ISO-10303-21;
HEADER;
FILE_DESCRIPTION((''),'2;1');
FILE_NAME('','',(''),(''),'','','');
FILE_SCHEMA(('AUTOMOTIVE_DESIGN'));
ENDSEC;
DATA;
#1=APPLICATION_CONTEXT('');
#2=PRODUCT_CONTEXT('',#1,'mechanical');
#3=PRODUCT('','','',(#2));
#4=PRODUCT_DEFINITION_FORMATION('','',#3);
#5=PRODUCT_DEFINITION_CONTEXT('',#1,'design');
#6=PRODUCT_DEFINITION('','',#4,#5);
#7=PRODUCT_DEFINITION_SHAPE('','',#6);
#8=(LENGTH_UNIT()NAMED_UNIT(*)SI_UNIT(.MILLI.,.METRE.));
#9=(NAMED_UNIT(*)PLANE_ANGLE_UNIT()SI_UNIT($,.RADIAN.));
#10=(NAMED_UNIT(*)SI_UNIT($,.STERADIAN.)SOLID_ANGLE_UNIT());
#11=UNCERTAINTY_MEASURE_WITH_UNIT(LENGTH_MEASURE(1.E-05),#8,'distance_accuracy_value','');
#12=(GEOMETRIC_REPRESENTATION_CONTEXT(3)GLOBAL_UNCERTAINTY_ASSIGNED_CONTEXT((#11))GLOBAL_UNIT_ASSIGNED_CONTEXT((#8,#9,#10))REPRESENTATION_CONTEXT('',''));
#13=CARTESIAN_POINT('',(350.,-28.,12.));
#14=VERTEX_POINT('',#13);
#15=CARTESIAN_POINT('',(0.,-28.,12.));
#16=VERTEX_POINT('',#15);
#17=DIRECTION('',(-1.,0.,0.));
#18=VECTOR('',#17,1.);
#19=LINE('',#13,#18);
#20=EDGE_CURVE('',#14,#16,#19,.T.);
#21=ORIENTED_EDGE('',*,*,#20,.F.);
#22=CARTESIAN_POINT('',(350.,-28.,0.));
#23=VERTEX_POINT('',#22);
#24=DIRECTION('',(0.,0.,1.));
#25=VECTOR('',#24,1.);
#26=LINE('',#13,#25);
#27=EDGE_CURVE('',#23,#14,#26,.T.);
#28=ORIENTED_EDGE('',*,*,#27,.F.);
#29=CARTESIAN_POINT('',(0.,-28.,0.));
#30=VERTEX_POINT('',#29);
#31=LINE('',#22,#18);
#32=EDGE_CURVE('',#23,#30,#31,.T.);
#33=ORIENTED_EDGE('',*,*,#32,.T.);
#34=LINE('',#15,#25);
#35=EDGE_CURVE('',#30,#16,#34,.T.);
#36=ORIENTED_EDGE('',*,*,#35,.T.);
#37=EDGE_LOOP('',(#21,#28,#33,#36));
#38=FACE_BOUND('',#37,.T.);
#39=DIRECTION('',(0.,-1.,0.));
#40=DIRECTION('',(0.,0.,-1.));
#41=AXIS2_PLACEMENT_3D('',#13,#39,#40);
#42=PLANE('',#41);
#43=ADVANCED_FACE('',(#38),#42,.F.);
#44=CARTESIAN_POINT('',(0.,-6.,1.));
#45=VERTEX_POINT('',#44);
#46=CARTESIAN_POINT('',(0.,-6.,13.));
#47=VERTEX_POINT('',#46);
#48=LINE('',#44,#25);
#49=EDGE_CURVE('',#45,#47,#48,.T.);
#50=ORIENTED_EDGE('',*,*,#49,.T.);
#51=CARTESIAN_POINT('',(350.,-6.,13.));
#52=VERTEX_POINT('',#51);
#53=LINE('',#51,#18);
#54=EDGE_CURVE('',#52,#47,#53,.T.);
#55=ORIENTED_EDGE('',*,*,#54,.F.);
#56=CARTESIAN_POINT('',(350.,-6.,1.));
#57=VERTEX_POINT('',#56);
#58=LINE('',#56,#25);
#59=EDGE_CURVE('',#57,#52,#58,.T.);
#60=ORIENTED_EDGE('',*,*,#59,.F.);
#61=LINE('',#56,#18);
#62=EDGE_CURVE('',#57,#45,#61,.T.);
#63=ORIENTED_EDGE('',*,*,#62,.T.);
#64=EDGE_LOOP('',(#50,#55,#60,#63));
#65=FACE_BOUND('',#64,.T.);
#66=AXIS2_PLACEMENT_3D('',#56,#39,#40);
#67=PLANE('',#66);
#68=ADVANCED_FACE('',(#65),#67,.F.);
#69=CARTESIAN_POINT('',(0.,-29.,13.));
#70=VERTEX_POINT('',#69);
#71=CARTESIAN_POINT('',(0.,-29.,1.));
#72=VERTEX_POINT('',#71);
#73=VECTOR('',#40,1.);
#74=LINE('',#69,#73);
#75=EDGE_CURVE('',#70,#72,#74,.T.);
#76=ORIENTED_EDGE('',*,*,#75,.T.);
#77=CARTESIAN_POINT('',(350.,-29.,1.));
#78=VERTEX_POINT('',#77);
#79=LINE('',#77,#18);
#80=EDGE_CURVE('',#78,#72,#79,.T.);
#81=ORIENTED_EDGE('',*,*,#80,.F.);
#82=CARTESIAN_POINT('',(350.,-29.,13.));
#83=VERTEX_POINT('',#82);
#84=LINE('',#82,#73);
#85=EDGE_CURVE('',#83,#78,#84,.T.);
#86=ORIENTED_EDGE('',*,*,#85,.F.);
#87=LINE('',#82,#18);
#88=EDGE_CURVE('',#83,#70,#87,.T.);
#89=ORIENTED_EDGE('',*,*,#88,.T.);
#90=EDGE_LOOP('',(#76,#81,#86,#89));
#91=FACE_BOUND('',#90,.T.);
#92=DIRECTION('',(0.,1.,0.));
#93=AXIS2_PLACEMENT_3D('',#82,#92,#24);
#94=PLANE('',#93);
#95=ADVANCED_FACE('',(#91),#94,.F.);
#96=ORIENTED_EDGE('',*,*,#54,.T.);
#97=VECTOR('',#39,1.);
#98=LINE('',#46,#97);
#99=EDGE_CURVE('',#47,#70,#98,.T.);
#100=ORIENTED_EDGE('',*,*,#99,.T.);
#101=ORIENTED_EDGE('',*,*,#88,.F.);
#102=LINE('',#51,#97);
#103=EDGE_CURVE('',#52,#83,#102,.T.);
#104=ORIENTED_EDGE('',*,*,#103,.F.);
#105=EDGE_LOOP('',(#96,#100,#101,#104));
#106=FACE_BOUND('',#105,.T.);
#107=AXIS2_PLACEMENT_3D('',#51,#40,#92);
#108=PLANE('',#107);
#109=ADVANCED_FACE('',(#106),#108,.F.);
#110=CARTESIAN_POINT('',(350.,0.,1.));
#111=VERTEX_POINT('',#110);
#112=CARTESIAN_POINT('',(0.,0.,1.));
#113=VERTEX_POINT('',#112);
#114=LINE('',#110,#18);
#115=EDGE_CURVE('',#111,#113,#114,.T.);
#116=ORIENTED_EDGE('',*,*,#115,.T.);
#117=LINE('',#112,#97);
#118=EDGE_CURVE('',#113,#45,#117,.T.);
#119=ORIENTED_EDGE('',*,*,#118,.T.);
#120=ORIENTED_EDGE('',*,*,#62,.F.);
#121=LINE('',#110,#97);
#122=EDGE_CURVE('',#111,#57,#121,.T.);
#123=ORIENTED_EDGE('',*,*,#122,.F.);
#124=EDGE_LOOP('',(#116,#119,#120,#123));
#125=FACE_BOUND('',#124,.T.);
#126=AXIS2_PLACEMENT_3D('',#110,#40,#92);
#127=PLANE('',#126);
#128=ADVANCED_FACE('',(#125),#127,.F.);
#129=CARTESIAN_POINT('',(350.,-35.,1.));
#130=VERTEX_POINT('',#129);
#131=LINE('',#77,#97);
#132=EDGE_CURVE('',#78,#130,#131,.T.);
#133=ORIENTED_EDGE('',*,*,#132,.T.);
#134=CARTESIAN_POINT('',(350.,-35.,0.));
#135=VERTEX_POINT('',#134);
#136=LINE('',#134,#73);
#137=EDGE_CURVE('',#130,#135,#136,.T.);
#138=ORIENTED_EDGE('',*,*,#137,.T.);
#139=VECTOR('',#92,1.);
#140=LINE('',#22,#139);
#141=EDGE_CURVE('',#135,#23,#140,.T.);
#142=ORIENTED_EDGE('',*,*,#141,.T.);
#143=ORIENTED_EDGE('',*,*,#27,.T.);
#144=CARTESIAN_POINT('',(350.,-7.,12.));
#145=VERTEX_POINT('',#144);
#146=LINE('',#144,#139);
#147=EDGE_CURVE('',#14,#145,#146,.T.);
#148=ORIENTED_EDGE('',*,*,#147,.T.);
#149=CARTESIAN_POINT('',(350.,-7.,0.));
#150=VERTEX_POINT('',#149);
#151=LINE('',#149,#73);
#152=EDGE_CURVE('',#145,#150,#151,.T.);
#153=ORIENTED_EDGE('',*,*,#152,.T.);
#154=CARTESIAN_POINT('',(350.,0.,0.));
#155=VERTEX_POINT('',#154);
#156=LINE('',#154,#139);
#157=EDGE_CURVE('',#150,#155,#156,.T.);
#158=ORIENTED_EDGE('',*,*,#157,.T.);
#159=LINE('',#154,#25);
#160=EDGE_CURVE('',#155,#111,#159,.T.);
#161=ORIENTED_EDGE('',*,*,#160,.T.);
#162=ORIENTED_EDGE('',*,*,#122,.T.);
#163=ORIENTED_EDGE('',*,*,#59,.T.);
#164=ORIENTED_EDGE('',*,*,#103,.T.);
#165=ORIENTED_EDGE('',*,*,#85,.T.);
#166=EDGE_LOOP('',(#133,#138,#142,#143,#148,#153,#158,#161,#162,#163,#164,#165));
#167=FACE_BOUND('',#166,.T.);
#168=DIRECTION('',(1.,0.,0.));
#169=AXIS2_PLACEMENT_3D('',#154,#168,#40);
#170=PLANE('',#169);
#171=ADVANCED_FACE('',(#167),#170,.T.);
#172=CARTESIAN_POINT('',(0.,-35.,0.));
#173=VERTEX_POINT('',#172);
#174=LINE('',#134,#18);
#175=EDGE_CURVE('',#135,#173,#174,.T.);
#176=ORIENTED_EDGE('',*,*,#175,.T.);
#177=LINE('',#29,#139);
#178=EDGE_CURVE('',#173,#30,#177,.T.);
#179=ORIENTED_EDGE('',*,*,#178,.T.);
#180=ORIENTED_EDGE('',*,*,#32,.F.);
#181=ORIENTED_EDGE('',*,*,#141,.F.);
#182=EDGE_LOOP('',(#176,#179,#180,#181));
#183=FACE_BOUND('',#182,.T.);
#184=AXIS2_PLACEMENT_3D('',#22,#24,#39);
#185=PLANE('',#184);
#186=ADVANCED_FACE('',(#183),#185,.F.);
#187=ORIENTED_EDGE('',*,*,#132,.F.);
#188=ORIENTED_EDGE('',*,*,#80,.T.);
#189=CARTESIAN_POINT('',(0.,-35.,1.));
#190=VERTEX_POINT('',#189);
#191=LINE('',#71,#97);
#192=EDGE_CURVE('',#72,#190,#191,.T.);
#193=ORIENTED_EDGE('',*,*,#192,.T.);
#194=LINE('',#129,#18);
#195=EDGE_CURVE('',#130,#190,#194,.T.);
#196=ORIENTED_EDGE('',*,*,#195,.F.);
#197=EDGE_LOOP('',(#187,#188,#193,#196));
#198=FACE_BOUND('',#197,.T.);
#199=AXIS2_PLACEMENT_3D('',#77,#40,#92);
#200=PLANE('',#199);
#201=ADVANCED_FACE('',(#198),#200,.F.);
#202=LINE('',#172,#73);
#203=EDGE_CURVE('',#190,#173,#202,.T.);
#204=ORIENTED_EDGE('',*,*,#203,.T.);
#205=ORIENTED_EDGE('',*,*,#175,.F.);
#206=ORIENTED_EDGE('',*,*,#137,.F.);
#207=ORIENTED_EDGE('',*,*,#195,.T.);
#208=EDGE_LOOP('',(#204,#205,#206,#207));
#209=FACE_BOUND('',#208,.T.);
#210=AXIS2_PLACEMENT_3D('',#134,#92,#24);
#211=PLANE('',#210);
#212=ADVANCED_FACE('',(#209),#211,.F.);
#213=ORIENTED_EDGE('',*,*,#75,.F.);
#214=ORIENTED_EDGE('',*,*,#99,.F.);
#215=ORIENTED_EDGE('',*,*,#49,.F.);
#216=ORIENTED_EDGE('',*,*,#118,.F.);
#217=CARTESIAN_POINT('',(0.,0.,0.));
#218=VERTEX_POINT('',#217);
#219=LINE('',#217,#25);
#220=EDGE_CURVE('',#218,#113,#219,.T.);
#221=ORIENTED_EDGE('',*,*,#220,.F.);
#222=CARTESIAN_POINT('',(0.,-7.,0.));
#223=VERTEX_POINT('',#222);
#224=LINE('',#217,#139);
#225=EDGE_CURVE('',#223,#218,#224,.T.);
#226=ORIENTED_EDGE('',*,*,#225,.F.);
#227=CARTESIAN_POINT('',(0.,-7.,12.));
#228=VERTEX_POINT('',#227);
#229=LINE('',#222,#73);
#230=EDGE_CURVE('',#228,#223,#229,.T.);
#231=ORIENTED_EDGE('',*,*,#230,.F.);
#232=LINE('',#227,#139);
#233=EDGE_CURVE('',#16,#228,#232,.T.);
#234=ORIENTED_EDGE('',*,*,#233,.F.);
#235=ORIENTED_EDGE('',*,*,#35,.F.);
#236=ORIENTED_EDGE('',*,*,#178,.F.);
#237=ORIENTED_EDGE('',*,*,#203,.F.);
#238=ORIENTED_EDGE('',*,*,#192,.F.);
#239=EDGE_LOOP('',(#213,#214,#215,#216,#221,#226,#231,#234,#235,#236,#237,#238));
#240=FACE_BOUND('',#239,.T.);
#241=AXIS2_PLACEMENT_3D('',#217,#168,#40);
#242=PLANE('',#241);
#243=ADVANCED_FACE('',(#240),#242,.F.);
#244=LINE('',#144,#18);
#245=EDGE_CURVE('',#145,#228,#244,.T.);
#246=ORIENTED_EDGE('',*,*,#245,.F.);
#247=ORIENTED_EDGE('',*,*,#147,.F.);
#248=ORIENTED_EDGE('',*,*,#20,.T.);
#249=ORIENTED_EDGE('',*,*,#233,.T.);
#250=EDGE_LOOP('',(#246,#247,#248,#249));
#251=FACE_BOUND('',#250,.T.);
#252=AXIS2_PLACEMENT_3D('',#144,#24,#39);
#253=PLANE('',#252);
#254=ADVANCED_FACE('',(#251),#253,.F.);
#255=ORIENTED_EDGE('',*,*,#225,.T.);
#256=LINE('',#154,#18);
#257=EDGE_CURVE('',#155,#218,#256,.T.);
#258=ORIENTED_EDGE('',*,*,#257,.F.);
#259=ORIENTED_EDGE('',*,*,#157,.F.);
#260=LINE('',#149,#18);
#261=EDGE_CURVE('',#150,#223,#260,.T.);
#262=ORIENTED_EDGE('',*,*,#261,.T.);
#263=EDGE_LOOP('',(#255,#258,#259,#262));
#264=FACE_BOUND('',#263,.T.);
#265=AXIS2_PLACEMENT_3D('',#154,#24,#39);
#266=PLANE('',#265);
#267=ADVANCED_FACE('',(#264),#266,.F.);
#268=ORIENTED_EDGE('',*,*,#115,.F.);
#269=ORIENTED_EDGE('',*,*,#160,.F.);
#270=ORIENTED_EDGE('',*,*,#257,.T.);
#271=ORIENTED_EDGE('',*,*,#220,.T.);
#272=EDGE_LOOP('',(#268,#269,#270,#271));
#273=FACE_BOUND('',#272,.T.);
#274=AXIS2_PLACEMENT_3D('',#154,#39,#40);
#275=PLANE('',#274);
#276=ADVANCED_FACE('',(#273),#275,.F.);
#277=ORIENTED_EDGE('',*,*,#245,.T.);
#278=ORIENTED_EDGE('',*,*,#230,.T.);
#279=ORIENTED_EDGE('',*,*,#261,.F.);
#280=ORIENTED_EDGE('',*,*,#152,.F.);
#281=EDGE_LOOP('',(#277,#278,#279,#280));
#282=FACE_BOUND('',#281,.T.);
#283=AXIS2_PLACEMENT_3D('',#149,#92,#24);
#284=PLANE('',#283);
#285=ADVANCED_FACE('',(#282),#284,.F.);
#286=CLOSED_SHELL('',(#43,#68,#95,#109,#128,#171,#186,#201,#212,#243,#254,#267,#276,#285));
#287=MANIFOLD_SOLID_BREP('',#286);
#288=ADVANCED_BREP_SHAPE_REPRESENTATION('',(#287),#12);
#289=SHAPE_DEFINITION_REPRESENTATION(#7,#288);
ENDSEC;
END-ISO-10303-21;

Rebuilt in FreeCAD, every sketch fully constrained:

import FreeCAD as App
import Part
import Sketcher

V = App.Vector

doc = App.newDocument("Part")
params = doc.addObject("Spreadsheet::Sheet", "Params")
for row, (alias, value) in enumerate([
    ("sketch1_width", "7 mm"),
    ("sketch1_width2", "6 mm"),
    ("sketch1_width3", "23 mm"),
    ("sketch1_height", "1 mm"),
    ("sketch1_height2", "12 mm"),
    ("pad1_length", "350 mm"),
], start=1):
    params.set(f"A{row}", alias)
    params.set(f"B{row}", "=" + value)
    params.setAlias(f"B{row}", alias)

body = doc.addObject("PartDesign::Body", "Body")

sketch1 = body.newObject("Sketcher::SketchObject", "Sketch")
sketch1.AttachmentSupport = (doc.getObject("YZ_Plane"), [""])
sketch1.MapMode = "FlatFace"
sketch1.addGeometry(Part.LineSegment(V(-7, 0, 0), V(0, 0, 0)), False)
sketch1.addGeometry(Part.LineSegment(V(0, 0, 0), V(0, 1, 0)), False)
sketch1.addGeometry(Part.LineSegment(V(0, 1, 0), V(-6, 1, 0)), False)
sketch1.addGeometry(Part.LineSegment(V(-6, 1, 0), V(-6, 13, 0)), False)
sketch1.addGeometry(Part.LineSegment(V(-6, 13, 0), V(-29, 13, 0)), False)
sketch1.addGeometry(Part.LineSegment(V(-29, 13, 0), V(-29, 1, 0)), False)
sketch1.addGeometry(Part.LineSegment(V(-29, 1, 0), V(-35, 1, 0)), False)
sketch1.addGeometry(Part.LineSegment(V(-35, 1, 0), V(-35, 0, 0)), False)
sketch1.addGeometry(Part.LineSegment(V(-35, 0, 0), V(-28, 0, 0)), False)
sketch1.addGeometry(Part.LineSegment(V(-28, 0, 0), V(-28, 12, 0)), False)
sketch1.addGeometry(Part.LineSegment(V(-28, 12, 0), V(-7, 12, 0)), False)
sketch1.addGeometry(Part.LineSegment(V(-7, 12, 0), V(-7, 0, 0)), False)
sketch1.addConstraint(Sketcher.Constraint("Coincident", 0, 2, 1, 1))
sketch1.addConstraint(Sketcher.Constraint("Coincident", 1, 2, 2, 1))
sketch1.addConstraint(Sketcher.Constraint("Coincident", 2, 2, 3, 1))
sketch1.addConstraint(Sketcher.Constraint("Coincident", 3, 2, 4, 1))
sketch1.addConstraint(Sketcher.Constraint("Coincident", 4, 2, 5, 1))
sketch1.addConstraint(Sketcher.Constraint("Coincident", 5, 2, 6, 1))
sketch1.addConstraint(Sketcher.Constraint("Coincident", 6, 2, 7, 1))
sketch1.addConstraint(Sketcher.Constraint("Coincident", 7, 2, 8, 1))
sketch1.addConstraint(Sketcher.Constraint("Coincident", 8, 2, 9, 1))
sketch1.addConstraint(Sketcher.Constraint("Coincident", 9, 2, 10, 1))
sketch1.addConstraint(Sketcher.Constraint("Coincident", 10, 2, 11, 1))
sketch1.addConstraint(Sketcher.Constraint("Coincident", 11, 2, 0, 1))
sketch1.addConstraint(Sketcher.Constraint("Horizontal", 0))
sketch1.addConstraint(Sketcher.Constraint("Vertical", 1))
sketch1.addConstraint(Sketcher.Constraint("Horizontal", 2))
sketch1.addConstraint(Sketcher.Constraint("Vertical", 3))
sketch1.addConstraint(Sketcher.Constraint("Horizontal", 4))
sketch1.addConstraint(Sketcher.Constraint("Vertical", 5))
sketch1.addConstraint(Sketcher.Constraint("Horizontal", 6))
sketch1.addConstraint(Sketcher.Constraint("Vertical", 7))
sketch1.addConstraint(Sketcher.Constraint("Horizontal", 8))
sketch1.addConstraint(Sketcher.Constraint("Vertical", 9))
sketch1.addConstraint(Sketcher.Constraint("Horizontal", 10))
sketch1.addConstraint(Sketcher.Constraint("Vertical", 11))
sketch1.addConstraint(Sketcher.Constraint("Coincident", 0, 2, -1, 1))
sketch1.addConstraint(Sketcher.Constraint("PointOnObject", 7, 2, -1))
sketch1.addConstraint(Sketcher.Constraint("Horizontal", 2, 2, 5, 2))
sketch1.addConstraint(Sketcher.Constraint("Equal", 2, 6))
sketch1.addConstraint(Sketcher.Constraint("Equal", 0, 8))
sketch1.addConstraint(Sketcher.Constraint("Equal", 5, 9))
sketch1.addConstraint(Sketcher.Constraint("DistanceX", 0, 1, 0, 2, 7.0))
sketch1.addConstraint(Sketcher.Constraint("DistanceX", 2, 2, 2, 1, 6.0))
sketch1.addConstraint(Sketcher.Constraint("DistanceX", 4, 2, 4, 1, 23.0))
sketch1.addConstraint(Sketcher.Constraint("DistanceY", 1, 1, 1, 2, 1.0))
sketch1.addConstraint(Sketcher.Constraint("DistanceY", 3, 1, 3, 2, 12.0))
sketch1.setExpression("Constraints[30]", "Params.sketch1_width")
sketch1.setExpression("Constraints[31]", "Params.sketch1_width2")
sketch1.setExpression("Constraints[32]", "Params.sketch1_width3")
sketch1.setExpression("Constraints[33]", "Params.sketch1_height")
sketch1.setExpression("Constraints[34]", "Params.sketch1_height2")
pad1 = body.newObject("PartDesign::Pad", "Pad")
pad1.Profile = sketch1
pad1.setExpression("Length", "Params.pad1_length")

doc.recompute()
